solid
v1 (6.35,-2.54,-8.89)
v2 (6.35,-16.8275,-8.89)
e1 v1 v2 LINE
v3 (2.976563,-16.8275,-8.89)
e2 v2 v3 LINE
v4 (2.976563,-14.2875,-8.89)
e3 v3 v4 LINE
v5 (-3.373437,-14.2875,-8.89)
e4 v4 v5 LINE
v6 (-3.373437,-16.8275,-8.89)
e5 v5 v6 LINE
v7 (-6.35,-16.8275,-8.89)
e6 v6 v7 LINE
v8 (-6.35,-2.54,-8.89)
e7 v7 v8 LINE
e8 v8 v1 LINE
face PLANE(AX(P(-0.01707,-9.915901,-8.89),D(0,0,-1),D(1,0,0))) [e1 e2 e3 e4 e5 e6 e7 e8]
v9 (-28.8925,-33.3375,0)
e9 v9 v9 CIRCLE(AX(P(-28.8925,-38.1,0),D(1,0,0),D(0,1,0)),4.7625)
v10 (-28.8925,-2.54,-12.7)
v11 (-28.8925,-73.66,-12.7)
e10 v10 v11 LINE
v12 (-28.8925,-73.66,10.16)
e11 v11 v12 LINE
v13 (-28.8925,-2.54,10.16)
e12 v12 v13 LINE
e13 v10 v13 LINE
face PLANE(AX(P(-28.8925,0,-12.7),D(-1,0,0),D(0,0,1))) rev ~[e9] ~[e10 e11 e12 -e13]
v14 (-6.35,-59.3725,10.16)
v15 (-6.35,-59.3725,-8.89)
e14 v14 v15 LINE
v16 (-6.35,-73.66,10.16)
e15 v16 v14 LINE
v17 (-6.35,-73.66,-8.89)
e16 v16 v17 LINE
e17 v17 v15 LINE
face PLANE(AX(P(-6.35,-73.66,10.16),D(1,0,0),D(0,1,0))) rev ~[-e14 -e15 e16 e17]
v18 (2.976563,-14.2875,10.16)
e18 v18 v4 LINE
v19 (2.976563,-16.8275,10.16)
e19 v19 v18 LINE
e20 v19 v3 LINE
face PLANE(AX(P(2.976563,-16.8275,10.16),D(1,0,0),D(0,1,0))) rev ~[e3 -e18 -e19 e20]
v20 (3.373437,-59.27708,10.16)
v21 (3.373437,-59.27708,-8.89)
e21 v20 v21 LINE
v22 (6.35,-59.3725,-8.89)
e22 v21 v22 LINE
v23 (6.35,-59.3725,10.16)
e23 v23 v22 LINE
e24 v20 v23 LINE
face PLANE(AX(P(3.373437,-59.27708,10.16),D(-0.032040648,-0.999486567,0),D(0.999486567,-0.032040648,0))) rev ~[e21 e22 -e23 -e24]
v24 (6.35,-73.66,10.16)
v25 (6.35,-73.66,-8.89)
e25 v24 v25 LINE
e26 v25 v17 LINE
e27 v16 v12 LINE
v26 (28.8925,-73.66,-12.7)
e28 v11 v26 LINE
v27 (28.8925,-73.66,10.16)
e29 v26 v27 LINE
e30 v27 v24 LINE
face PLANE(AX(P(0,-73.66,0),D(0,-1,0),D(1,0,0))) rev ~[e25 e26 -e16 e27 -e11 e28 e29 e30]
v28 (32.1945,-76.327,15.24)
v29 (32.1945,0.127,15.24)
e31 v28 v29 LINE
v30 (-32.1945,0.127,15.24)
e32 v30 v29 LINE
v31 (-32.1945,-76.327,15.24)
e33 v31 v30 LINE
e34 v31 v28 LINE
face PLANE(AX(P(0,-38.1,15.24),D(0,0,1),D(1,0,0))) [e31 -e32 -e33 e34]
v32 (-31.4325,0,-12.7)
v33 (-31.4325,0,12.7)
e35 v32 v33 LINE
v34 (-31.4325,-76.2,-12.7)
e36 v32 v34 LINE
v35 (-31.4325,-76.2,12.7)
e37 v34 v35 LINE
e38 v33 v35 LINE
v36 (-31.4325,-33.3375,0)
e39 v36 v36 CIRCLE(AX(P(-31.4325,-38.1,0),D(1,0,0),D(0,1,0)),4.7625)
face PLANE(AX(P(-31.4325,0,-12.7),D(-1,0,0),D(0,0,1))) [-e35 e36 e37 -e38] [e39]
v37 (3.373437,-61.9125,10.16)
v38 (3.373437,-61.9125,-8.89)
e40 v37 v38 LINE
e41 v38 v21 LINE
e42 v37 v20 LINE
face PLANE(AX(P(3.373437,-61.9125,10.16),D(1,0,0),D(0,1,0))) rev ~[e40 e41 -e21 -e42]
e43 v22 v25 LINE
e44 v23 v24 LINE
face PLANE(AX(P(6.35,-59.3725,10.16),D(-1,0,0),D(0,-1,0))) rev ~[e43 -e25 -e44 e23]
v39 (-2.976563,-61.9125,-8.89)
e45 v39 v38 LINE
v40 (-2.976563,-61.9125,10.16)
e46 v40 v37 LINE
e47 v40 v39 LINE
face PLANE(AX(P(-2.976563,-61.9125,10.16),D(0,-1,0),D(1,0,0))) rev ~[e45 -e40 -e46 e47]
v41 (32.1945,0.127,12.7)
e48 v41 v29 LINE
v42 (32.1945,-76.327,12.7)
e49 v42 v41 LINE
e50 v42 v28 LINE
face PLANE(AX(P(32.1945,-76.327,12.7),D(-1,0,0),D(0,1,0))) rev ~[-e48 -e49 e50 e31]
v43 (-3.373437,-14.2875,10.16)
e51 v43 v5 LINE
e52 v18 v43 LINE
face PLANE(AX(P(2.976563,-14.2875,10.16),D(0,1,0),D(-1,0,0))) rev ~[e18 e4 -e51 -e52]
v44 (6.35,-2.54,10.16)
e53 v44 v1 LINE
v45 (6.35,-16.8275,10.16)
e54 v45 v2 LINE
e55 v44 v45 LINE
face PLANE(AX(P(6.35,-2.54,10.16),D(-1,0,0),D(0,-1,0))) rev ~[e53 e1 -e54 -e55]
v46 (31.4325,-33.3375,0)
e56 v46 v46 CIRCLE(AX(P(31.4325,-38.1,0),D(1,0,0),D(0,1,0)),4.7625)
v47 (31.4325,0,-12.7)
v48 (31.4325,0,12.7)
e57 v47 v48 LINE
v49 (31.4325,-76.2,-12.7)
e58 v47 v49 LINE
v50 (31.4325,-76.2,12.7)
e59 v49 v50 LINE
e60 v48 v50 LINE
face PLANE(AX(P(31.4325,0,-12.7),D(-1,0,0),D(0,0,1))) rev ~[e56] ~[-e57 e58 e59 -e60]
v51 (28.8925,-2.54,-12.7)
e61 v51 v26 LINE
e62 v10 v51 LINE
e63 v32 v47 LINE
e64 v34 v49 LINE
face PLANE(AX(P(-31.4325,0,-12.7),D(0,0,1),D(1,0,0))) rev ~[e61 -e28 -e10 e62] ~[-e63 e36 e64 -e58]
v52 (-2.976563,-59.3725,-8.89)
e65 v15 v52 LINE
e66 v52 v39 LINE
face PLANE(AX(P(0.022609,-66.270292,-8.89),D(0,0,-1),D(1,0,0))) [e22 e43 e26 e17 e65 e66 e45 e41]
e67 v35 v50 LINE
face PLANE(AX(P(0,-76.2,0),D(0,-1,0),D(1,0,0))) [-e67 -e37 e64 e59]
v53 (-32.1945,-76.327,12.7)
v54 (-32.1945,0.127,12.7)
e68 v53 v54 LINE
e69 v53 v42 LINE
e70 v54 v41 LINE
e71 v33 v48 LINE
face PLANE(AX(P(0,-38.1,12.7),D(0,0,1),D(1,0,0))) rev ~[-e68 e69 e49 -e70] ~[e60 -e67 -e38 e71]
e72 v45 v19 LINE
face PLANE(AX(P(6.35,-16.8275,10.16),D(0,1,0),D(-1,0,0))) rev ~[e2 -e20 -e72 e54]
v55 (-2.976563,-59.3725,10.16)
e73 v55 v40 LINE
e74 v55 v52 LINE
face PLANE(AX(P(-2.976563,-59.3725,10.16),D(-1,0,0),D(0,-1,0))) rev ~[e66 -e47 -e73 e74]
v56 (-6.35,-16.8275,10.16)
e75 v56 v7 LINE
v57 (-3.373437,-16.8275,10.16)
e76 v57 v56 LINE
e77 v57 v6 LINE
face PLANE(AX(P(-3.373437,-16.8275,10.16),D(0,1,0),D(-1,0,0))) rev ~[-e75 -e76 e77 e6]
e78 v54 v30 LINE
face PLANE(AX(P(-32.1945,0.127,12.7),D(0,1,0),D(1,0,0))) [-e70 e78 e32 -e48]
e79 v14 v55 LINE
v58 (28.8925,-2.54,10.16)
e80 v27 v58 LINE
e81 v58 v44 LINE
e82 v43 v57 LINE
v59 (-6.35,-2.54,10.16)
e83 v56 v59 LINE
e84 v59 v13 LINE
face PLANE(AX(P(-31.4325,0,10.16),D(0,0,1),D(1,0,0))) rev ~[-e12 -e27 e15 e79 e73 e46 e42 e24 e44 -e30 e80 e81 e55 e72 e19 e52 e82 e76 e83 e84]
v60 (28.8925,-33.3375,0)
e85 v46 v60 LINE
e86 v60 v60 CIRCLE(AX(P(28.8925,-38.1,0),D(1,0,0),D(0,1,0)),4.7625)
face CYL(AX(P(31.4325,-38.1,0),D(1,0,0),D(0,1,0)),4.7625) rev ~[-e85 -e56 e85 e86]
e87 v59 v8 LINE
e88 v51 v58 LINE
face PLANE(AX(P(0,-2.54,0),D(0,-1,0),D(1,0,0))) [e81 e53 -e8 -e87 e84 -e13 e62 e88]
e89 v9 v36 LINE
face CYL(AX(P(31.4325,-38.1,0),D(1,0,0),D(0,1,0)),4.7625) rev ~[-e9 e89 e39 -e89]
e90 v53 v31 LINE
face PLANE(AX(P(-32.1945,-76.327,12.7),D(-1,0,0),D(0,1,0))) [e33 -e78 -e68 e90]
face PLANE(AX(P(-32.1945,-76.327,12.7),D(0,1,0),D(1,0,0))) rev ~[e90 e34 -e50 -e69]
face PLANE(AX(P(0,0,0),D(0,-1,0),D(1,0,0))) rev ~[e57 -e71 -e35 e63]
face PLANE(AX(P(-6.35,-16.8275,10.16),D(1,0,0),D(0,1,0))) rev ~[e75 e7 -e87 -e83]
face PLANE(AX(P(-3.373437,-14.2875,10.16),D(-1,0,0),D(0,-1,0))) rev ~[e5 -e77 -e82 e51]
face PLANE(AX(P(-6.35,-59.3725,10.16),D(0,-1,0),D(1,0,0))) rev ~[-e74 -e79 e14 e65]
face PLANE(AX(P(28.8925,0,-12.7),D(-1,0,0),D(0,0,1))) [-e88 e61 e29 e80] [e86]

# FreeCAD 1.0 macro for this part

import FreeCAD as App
import Part
import Sketcher
from FreeCAD import Vector
Q = App.Units.Quantity


def faces_at(feature, points):
    """Names of the faces that lie closest to the given points."""
    faces = feature.Shape.Faces
    near = lambda p: min(range(len(faces)), key=lambda i: faces[i].distToShape(Part.Vertex(*p))[0])
    return sorted({f"Face{near(p) + 1}" for p in points})


def add_polygon(sketch, points):
    """Adds a closed chain of lines whose ends are joined by coincident constraints."""
    first, n = sketch.GeometryCount, len(points)
    for a, b in zip(points, points[1:] + points[:1]):
        sketch.addGeometry(Part.LineSegment(App.Vector(*a, 0), App.Vector(*b, 0)), False)
    for i in range(n):
        sketch.addConstraint(Sketcher.Constraint("Coincident", first + i, 2, first + (i + 1) % n, 1))

doc = App.newDocument("Part")
body = doc.addObject("PartDesign::Body", "Body")

sketch1 = body.newObject("Sketcher::SketchObject", "Sketch")
sketch1.AttachmentSupport = (doc.getObject("XZ_Plane"), [""])
sketch1.MapMode = "FlatFace"
add_polygon(sketch1, [(-31, 13), (-31, -13), (31, -13), (31, 13)])
sketch1.addConstraint([
    Sketcher.Constraint("Vertical", 0),
    Sketcher.Constraint("Horizontal", 1),
    Sketcher.Constraint("Vertical", 2),
    Sketcher.Constraint("Horizontal", 3),
    Sketcher.Constraint("Symmetric", 0, 2, 2, 2, -1, 1),
    Sketcher.Constraint("DistanceY", 0, 2, 0, 1, Q("1 in")),
    Sketcher.Constraint("DistanceX", 1, 1, 1, 2, Q("2.475 in")),
])
pad1 = body.newObject("PartDesign::Pad", "Pad")
pad1.Profile = sketch1
pad1.Length = Q("3 in")
doc.recompute()

thickness = body.newObject("PartDesign::Thickness", "Thickness")
thickness.Base = (pad1, faces_at(pad1, [(0, -38.1, -12.7)]))
thickness.Value = Q("0.1 in")
thickness.Reversed = True
thickness.Join = "Arc"

sketch2 = body.newObject("Sketcher::SketchObject", "Sketch001")
sketch2.AttachmentSupport = (doc.getObject("XY_Plane"), [""])
sketch2.MapMode = "FlatFace"
sketch2.AttachmentOffset = App.Placement(Vector(0, 0, 0.5 * 25.4), App.Rotation())
add_polygon(sketch2, [(-32, 0), (-32, -76), (32, -76), (32, 0)])
sketch2.addConstraint([
    Sketcher.Constraint("Vertical", 0),
    Sketcher.Constraint("Horizontal", 1),
    Sketcher.Constraint("Vertical", 2),
    Sketcher.Constraint("Horizontal", 3),
    Sketcher.Constraint("DistanceY", 0, 2, 0, 1, Q("3.01 in")),
    Sketcher.Constraint("DistanceX", 1, 1, 1, 2, Q("2.535 in")),
    Sketcher.Constraint("DistanceY", 0, 2, -1, 1, Q("3.005 in")),
    Sketcher.Constraint("DistanceX", 0, 2, -1, 1, Q("1.2675 in")),
])
pad2 = body.newObject("PartDesign::Pad", "Pad001")
pad2.Profile = sketch2
pad2.Length = Q("0.1 in")

sketch3 = body.newObject("Sketcher::SketchObject", "Sketch002")
sketch3.AttachmentSupport = (doc.getObject("YZ_Plane"), [""])
sketch3.MapMode = "FlatFace"
sketch3.AttachmentOffset = App.Placement(Vector(0, 0, 1.2375 * 25.4), App.Rotation())
sketch3.addGeometry(Part.Circle(Vector(-38.1, 0, 0), Vector(0, 0, 1), 4.8), False)
sketch3.addConstraint([
    Sketcher.Constraint("PointOnObject", 0, 3, -1),
    Sketcher.Constraint("Diameter", 0, Q("0.375 in")),
    Sketcher.Constraint("DistanceX", 0, 3, -1, 1, Q("1.5 in")),
])
pocket1 = body.newObject("PartDesign::Pocket", "Pocket")
pocket1.Profile = sketch3
pocket1.Type = "ThroughAll"

sketch4 = body.newObject("Sketcher::SketchObject", "Sketch003")
sketch4.AttachmentSupport = (doc.getObject("XY_Plane"), [""])
sketch4.MapMode = "FlatFace"
sketch4.AttachmentOffset = App.Placement(Vector(0, 0, 0.4 * 25.4), App.Rotation())
add_polygon(sketch4, [(-3, -61.9), (3.4, -61.9), (3.4, -59.3), (6.3, -59.4), (6.3, -73.7), (-6.3, -73.7), (-6.3, -59.4), (-3, -59.4)])
add_polygon(sketch4, [(3, -16.8), (3, -14.3), (-3.4, -14.3), (-3.4, -16.8), (-6.3, -16.8), (-6.3, -2.5), (6.3, -2.5), (6.3, -16.8)])
sketch4.addConstraint([
    Sketcher.Constraint("Horizontal", 0),
    Sketcher.Constraint("Vertical", 1),
    Sketcher.Constraint("Vertical", 3),
    Sketcher.Constraint("Horizontal", 4),
    Sketcher.Constraint("Vertical", 5),
    Sketcher.Constraint("Horizontal", 6),
    Sketcher.Constraint("Vertical", 7),
    Sketcher.Constraint("Vertical", 8),
    Sketcher.Constraint("Horizontal", 9),
    Sketcher.Constraint("Vertical", 10),
    Sketcher.Constraint("Horizontal", 11),
    Sketcher.Constraint("Vertical", 12),
    Sketcher.Constraint("Horizontal", 13),
    Sketcher.Constraint("Vertical", 14),
    Sketcher.Constraint("Horizontal", 15),
    Sketcher.Constraint("Symmetric", 2, 2, 5, 2, -2),
    Sketcher.Constraint("Symmetric", 11, 2, 14, 2, -2),
    Sketcher.Constraint("Vertical", 5, 2, 11, 2),
    Sketcher.Constraint("Equal", 0, 9),
    Sketcher.Constraint("Equal", 6, 15),
    Sketcher.Constraint("Equal", 7, 8),
    Sketcher.Constraint("Equal", 5, 12),
    Sketcher.Constraint("DistanceX", 4, 2, 4, 1, Q("0.5 in")),
    Sketcher.Constraint("DistanceY", 7, 2, 7, 1, Q("0.1 in")),
    Sketcher.Constraint("DistanceX", 0, 1, 0, 2, Q("0.25 in")),
    Sketcher.Constraint("DistanceY", 3, 2, -1, 1, Q("2.9 in")),
    Sketcher.Constraint("DistanceY", 12, 2, -1, 1, Q("0.1 in")),
    Sketcher.Constraint("DistanceY", 3, 2, 3, 1, Q("0.5625 in")),
    Sketcher.Constraint("DistanceX", 8, 2, 1, 2, Q("0.015625 in")),
    Sketcher.Constraint("DistanceY", 1, 1, 1, 2, 2.63542),
])
pad3 = body.newObject("PartDesign::Pad", "Pad002")
pad3.Profile = sketch4
pad3.Length = Q("0.75 in")
pad3.Reversed = True

doc.recompute()
